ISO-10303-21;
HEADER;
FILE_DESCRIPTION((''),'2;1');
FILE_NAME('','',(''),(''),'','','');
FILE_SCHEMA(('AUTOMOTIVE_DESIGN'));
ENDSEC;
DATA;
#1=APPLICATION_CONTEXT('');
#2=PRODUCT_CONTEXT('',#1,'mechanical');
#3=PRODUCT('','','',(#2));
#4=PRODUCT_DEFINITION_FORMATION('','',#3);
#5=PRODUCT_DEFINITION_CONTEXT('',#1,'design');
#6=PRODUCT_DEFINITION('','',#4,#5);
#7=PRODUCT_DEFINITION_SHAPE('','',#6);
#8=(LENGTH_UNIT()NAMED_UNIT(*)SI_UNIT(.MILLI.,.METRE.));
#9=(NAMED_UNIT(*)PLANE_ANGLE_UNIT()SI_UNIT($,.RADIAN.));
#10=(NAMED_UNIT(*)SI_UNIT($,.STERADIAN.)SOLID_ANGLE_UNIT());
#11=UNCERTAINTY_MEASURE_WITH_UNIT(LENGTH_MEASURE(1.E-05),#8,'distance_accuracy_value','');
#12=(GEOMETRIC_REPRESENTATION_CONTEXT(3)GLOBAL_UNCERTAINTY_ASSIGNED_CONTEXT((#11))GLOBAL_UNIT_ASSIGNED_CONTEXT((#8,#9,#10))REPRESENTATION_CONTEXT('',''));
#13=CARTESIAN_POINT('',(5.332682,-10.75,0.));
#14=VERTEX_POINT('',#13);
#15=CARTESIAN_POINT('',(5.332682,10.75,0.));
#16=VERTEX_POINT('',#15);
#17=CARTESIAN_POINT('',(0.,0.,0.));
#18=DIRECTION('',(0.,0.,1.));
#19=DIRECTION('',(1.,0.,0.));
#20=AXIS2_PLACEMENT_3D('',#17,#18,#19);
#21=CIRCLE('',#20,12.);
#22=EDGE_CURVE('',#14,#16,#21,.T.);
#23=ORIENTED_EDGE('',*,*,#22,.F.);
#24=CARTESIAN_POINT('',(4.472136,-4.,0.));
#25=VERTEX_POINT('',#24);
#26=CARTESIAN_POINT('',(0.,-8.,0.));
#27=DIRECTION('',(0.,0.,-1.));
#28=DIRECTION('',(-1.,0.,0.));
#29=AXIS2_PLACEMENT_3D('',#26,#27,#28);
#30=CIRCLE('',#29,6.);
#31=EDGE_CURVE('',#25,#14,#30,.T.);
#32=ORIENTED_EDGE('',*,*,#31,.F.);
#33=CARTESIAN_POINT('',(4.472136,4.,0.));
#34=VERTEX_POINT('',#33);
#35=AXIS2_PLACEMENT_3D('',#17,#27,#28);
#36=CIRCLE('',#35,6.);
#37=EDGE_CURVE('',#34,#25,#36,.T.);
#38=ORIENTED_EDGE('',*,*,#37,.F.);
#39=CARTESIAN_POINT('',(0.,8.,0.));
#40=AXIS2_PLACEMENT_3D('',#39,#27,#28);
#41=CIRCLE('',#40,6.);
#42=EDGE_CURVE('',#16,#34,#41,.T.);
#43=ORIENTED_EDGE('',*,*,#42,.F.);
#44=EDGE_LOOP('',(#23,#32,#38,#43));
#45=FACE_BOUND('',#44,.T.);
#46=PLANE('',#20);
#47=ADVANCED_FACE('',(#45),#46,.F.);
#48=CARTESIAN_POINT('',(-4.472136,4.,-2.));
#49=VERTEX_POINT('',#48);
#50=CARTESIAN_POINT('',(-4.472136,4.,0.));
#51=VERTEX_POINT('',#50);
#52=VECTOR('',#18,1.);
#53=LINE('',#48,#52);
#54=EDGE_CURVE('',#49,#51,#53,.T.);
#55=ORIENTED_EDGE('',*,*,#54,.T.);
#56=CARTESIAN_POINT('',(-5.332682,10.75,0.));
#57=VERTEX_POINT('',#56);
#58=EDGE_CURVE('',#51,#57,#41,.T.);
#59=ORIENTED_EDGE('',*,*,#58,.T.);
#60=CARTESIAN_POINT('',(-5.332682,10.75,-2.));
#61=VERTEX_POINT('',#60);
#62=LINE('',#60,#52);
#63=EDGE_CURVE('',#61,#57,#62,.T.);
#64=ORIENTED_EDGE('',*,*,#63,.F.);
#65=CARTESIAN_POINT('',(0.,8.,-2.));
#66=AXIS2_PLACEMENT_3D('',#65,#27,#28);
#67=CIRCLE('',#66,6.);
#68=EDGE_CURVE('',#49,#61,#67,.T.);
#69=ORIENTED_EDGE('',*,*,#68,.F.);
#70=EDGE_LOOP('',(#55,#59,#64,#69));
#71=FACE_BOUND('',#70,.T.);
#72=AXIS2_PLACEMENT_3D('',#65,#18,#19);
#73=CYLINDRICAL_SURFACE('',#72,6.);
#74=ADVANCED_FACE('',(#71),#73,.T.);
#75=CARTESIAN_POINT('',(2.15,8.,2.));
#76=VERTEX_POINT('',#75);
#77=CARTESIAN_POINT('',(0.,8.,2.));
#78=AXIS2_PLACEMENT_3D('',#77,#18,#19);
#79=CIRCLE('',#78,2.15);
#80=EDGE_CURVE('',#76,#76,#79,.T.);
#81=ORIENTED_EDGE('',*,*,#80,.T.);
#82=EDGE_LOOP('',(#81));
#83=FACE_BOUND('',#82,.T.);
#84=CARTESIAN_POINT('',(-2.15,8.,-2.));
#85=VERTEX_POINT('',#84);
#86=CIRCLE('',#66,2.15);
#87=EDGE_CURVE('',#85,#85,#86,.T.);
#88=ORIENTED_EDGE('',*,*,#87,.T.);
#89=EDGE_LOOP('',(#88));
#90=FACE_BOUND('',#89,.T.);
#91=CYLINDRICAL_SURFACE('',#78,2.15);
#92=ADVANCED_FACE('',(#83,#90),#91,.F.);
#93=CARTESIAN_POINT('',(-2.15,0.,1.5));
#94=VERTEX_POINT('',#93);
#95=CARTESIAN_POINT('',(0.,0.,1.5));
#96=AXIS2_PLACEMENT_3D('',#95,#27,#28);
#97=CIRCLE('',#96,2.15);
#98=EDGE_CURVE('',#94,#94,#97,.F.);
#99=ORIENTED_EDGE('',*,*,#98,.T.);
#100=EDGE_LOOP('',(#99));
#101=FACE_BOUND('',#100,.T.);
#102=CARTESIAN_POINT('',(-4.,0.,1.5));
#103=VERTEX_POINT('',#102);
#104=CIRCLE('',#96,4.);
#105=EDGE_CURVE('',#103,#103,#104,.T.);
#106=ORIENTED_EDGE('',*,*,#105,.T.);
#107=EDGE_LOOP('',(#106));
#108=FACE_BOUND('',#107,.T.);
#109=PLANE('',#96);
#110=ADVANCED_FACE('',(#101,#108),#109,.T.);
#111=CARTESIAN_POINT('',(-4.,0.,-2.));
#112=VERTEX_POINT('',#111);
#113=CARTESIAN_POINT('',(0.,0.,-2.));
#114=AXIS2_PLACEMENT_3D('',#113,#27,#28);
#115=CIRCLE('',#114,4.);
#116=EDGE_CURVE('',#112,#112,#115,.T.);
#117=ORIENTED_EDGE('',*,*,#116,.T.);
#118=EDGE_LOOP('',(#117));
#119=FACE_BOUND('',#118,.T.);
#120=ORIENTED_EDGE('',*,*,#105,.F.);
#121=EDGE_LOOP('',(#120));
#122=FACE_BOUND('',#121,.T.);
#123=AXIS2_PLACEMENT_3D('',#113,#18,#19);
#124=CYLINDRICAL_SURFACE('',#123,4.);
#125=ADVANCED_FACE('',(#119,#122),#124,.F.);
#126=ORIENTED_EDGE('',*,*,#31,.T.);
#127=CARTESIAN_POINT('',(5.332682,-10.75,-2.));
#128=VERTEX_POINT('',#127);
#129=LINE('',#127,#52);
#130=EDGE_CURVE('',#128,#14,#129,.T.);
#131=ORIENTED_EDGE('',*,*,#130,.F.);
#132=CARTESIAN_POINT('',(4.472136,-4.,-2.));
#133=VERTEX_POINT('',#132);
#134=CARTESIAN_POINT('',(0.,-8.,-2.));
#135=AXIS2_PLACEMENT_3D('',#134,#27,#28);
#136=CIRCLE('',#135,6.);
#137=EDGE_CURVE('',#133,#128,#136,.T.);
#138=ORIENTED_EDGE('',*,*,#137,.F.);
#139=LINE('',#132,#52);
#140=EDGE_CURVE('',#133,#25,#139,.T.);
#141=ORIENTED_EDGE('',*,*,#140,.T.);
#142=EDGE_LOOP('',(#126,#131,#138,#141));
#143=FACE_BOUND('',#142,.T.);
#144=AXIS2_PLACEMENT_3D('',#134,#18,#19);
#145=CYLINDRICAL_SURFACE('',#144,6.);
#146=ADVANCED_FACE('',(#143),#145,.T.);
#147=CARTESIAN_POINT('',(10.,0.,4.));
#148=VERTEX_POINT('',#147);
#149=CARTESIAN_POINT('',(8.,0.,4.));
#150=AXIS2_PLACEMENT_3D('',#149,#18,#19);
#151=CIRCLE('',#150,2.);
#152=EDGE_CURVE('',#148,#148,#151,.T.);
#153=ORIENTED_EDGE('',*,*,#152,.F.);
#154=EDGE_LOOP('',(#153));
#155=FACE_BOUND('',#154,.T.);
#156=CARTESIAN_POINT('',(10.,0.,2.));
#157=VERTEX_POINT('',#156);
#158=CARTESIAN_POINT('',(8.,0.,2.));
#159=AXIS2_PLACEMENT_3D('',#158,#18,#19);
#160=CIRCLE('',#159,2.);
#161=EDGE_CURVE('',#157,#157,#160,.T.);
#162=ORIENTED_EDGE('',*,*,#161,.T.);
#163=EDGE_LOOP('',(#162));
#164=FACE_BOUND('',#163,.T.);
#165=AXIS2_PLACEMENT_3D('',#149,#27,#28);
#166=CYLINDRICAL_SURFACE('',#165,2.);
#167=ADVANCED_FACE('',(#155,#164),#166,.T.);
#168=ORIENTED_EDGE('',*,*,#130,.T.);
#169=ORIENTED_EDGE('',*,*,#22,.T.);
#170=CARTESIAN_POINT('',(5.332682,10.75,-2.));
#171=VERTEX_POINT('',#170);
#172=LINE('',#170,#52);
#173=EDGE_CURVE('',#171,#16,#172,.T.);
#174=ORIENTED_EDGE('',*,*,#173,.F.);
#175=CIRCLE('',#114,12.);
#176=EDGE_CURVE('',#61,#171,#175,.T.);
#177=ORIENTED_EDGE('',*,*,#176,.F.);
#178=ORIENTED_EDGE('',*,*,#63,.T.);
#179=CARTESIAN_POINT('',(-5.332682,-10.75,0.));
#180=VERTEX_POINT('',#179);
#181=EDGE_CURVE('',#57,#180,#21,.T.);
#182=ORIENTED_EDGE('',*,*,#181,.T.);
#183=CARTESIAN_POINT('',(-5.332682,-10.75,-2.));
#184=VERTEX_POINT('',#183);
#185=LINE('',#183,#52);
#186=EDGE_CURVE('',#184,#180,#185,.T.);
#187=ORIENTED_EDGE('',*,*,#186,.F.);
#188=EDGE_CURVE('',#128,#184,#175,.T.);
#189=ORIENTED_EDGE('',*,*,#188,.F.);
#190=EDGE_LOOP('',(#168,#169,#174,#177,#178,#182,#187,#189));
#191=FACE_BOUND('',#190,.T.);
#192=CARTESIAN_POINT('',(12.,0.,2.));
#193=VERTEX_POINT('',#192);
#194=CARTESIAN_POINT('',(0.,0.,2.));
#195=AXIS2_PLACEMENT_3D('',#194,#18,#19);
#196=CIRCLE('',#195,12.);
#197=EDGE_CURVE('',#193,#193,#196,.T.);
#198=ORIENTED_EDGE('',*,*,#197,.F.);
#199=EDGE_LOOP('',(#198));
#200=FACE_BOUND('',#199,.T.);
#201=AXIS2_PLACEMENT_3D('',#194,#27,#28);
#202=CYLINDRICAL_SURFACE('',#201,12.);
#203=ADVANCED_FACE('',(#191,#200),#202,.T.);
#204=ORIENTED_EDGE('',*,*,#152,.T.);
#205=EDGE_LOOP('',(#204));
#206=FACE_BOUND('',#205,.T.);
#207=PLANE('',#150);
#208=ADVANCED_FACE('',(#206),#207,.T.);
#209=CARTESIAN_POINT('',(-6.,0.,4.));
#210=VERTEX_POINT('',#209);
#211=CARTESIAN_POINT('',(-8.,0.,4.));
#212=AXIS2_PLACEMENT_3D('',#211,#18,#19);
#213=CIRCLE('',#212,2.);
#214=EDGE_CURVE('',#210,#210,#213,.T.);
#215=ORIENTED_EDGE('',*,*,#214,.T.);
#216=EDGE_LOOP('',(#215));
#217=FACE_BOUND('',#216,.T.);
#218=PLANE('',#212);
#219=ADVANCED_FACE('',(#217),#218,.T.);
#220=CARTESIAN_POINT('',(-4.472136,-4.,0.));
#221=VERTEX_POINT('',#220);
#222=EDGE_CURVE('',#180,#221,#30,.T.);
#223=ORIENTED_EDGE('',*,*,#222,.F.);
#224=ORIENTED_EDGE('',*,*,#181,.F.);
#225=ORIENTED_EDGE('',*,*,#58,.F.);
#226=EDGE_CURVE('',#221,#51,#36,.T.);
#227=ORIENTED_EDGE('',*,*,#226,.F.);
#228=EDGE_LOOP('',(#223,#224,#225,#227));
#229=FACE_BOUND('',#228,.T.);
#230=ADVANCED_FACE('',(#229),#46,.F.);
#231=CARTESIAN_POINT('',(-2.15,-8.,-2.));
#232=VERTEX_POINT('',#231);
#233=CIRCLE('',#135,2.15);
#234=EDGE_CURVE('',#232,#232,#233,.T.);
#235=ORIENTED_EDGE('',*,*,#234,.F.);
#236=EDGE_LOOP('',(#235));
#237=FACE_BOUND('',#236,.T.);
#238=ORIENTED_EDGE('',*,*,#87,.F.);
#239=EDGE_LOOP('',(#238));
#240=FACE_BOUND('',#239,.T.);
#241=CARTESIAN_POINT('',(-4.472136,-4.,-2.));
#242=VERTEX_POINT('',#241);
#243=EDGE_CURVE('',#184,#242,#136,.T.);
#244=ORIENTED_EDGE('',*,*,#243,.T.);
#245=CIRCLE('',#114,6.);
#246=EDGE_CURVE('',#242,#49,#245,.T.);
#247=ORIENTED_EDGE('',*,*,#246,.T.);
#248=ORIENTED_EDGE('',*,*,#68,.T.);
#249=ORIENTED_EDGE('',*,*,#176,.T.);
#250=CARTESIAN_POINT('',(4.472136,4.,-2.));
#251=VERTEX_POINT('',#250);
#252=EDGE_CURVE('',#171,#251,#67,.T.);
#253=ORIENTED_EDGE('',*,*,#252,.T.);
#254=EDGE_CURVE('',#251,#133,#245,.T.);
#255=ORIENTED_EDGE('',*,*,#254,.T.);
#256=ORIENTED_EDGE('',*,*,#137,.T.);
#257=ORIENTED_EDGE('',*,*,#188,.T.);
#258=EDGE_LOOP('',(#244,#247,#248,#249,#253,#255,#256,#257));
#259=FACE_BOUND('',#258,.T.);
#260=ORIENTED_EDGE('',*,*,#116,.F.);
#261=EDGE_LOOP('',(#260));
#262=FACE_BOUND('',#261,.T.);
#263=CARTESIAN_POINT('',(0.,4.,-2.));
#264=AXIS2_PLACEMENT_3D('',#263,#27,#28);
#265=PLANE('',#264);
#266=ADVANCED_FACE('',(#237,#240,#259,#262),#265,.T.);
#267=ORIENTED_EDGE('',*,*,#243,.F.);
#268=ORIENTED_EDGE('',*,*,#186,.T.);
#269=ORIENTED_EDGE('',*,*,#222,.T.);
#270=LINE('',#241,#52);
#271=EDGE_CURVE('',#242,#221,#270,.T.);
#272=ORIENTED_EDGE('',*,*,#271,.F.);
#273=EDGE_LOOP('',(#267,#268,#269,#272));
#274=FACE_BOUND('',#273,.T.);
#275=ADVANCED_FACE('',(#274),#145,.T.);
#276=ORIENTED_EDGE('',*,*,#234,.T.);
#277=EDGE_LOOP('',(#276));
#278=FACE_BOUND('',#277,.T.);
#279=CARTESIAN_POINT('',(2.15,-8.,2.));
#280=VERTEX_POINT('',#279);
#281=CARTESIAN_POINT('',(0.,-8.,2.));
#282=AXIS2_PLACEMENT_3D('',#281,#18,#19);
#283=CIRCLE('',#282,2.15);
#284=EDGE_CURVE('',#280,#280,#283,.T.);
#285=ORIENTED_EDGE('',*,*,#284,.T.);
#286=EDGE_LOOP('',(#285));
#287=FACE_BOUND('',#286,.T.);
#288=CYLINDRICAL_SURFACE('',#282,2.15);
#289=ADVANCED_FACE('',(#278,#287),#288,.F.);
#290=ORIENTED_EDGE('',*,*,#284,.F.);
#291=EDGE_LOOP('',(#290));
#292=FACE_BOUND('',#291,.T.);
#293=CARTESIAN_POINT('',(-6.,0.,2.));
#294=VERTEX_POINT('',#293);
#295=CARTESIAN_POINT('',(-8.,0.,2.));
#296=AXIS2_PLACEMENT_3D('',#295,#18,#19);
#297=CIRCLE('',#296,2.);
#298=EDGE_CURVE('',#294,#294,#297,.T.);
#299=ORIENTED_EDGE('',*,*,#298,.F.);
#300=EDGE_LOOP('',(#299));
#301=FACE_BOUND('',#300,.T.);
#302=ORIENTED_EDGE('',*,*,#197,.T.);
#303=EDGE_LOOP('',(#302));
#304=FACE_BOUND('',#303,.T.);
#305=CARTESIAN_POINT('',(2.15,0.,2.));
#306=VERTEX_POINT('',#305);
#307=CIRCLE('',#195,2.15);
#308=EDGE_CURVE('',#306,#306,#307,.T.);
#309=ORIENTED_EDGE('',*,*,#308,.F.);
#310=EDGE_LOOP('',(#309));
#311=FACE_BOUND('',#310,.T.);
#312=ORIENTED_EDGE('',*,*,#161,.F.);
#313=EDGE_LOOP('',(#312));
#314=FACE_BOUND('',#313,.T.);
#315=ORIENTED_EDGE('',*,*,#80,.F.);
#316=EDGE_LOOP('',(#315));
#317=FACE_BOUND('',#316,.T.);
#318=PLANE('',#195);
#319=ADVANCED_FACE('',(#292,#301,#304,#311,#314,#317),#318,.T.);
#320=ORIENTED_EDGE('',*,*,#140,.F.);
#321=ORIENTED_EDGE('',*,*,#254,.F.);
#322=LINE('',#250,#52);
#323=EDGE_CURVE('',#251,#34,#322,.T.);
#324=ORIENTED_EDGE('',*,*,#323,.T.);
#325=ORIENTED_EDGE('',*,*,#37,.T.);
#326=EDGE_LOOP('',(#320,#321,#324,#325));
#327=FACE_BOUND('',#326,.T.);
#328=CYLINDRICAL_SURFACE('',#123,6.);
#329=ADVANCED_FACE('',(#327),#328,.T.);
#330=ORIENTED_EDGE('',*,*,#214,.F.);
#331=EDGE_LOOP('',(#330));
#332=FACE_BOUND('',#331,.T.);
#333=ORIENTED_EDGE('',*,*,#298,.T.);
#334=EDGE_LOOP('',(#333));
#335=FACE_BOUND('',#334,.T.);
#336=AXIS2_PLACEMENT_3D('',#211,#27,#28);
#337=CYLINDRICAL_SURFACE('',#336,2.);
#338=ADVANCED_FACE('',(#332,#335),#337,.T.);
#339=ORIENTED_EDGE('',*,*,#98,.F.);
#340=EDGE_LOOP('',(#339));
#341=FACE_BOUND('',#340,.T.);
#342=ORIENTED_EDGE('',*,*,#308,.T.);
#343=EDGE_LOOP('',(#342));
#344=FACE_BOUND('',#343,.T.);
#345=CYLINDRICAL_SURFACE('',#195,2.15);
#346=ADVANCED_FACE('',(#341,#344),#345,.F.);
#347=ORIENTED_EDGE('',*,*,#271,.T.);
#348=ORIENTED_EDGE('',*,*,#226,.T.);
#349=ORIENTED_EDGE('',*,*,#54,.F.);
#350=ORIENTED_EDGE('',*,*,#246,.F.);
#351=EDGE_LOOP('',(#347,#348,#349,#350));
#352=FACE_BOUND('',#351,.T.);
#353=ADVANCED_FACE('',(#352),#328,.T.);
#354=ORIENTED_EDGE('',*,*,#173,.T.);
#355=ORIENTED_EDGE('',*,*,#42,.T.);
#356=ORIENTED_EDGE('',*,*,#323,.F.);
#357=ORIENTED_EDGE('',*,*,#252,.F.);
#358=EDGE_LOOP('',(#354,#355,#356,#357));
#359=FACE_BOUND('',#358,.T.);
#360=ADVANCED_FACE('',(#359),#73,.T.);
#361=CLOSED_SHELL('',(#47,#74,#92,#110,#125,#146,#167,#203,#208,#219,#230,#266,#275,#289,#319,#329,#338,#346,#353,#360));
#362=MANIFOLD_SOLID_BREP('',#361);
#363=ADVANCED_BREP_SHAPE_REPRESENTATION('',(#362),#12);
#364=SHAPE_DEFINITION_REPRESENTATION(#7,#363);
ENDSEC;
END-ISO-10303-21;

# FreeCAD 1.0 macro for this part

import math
import FreeCAD as App
import Part
import Sketcher
Q = App.Units.Quantity

doc = App.newDocument("Part")
params = doc.addObject("Spreadsheet::Sheet", "Params")
for row, (alias, value) in enumerate([
    ("sketch1_diameter", "24 mm"),
    ("pad1_length", "2 mm"),
    ("sketch2_diameter", "4 mm"),
    ("pad2_length", "2 mm"),
    ("sketch3_diameter", "4.3 mm"),
    ("hole_diameter", "4.3 mm"),
    ("sketch4_diameter", "8 mm"),
    ("sketch4_radius", "6 mm"),
    ("sketch4_radius2", "12 mm"),
    ("sketch4_diameter2", "4.3 mm"),
    ("pad3_length", "2 mm"),
    ("sketch5_diameter", "8 mm"),
    ("pocket1_length", "1.5 mm"),
], start=1):
    params.set(f"A{row}", alias)
    params.set(f"B{row}", "=" + value)
    params.setAlias(f"B{row}", alias)

body = doc.addObject("PartDesign::Body", "Body")

sketch1 = body.newObject("Sketcher::SketchObject", "Sketch")
sketch1.AttachmentSupport = (doc.getObject("XY_Plane"), [""])
sketch1.MapMode = "FlatFace"
sketch1.addGeometry(Part.Circle(App.Vector(0, 0, 0), App.Vector(0, 0, 1), 12), False)
sketch1.addConstraint(Sketcher.Constraint("Coincident", 0, 3, -1, 1))
sketch1.addConstraint(Sketcher.Constraint("Diameter", 0, Q("24 mm")))
sketch1.setExpression("Constraints[1]", "Params.sketch1_diameter")
pad1 = body.newObject("PartDesign::Pad", "Pad")
pad1.Profile = sketch1
pad1.setExpression("Length", "Params.pad1_length")

sketch2 = body.newObject("Sketcher::SketchObject", "Sketch001")
sketch2.AttachmentSupport = (doc.getObject("XY_Plane"), [""])
sketch2.MapMode = "FlatFace"
sketch2.AttachmentOffset = App.Placement(App.Vector(0, 0, 2), App.Rotation())
sketch2.addGeometry(Part.Circle(App.Vector(-8, 0, 0), App.Vector(0, 0, 1), 2), False)
sketch2.addGeometry(Part.Circle(App.Vector(8, 0, 0), App.Vector(0, 0, 1), 2), False)
sketch2.addConstraint(Sketcher.Constraint("Equal", 0, 1))
sketch2.addConstraint(Sketcher.Constraint("Symmetric", 0, 3, 1, 3, -1, 1))
sketch2.addConstraint(Sketcher.Constraint("PointOnObject", 0, 3, -1))
sketch2.addConstraint(Sketcher.Constraint("Diameter", 0, Q("4 mm")))
sketch2.addConstraint(Sketcher.Constraint("DistanceX", 0, 3, -1, 1, Q("8 mm")))
sketch2.setExpression("Constraints[3]", "Params.sketch2_diameter")
pad2 = body.newObject("PartDesign::Pad", "Pad001")
pad2.Profile = sketch2
pad2.setExpression("Length", "Params.pad2_length")

sketch3 = body.newObject("Sketcher::SketchObject", "Sketch002")
sketch3.AttachmentSupport = (doc.getObject("XY_Plane"), [""])
sketch3.MapMode = "FlatFace"
sketch3.AttachmentOffset = App.Placement(App.Vector(0, 0, 2), App.Rotation())
sketch3.addGeometry(Part.Circle(App.Vector(0, 8, 0), App.Vector(0, 0, 1), 2.1), False)
sketch3.addGeometry(Part.Circle(App.Vector(0, 0, 0), App.Vector(0, 0, 1), 2.1), False)
sketch3.addGeometry(Part.Circle(App.Vector(0, -8, 0), App.Vector(0, 0, 1), 2.1), False)
sketch3.addConstraint(Sketcher.Constraint("Coincident", 1, 3, -1, 1))
sketch3.addConstraint(Sketcher.Constraint("Equal", 0, 1))
sketch3.addConstraint(Sketcher.Constraint("Equal", 1, 2))
sketch3.addConstraint(Sketcher.Constraint("Symmetric", 0, 3, 2, 3, -1, 1))
sketch3.addConstraint(Sketcher.Constraint("PointOnObject", 0, 3, -2))
sketch3.addConstraint(Sketcher.Constraint("Diameter", 0, Q("4.3 mm")))
sketch3.addConstraint(Sketcher.Constraint("DistanceY", -1, 1, 0, 3, Q("8 mm")))
sketch3.setExpression("Constraints[5]", "Params.sketch3_diameter")
doc.recompute()
hole = body.newObject("PartDesign::Hole", "Hole")
hole.Profile = sketch3
hole.ThreadType = "None"
hole.setExpression("Diameter", "Params.hole_diameter")
hole.DepthType = "ThroughAll"

sketch4 = body.newObject("Sketcher::SketchObject", "Sketch003")
sketch4.AttachmentSupport = (doc.getObject("XY_Plane"), [""])
sketch4.MapMode = "FlatFace"
sketch4.AttachmentOffset = App.Placement(App.Vector(0, 0, -2), App.Rotation())
sketch4.addGeometry(Part.ArcOfCircle(Part.Circle(App.Vector(0, 0, 0), App.Vector(0, 0, 1), 6), math.radians(138), math.radians(222)), False)
sketch4.addGeometry(Part.ArcOfCircle(Part.Circle(App.Vector(0, 8, 0), App.Vector(0, 0, 1), 6), math.radians(153), math.radians(222)), False)
sketch4.addGeometry(Part.ArcOfCircle(Part.Circle(App.Vector(0, 0, 0), App.Vector(0, 0, 1), 12), math.radians(64), math.radians(116)), False)
sketch4.addGeometry(Part.ArcOfCircle(Part.Circle(App.Vector(0, 8, 0), App.Vector(0, 0, 1), 6), math.radians(-42), math.radians(27)), False)
sketch4.addGeometry(Part.ArcOfCircle(Part.Circle(App.Vector(0, 0, 0), App.Vector(0, 0, 1), 6), math.radians(-42), math.radians(42)), False)
sketch4.addGeometry(Part.ArcOfCircle(Part.Circle(App.Vector(0, -8, 0), App.Vector(0, 0, 1), 6), math.radians(-27), math.radians(42)), False)
sketch4.addGeometry(Part.ArcOfCircle(Part.Circle(App.Vector(0, 0, 0), App.Vector(0, 0, 1), 12), math.radians(-116), math.radians(-64)), False)
sketch4.addGeometry(Part.ArcOfCircle(Part.Circle(App.Vector(0, -8, 0), App.Vector(0, 0, 1), 6), math.radians(138), math.radians(207)), False)
sketch4.addGeometry(Part.Circle(App.Vector(0, -8, 0), App.Vector(0, 0, 1), 2.1), False)
sketch4.addGeometry(Part.Circle(App.Vector(0, 8, 0), App.Vector(0, 0, 1), 2.1), False)
sketch4.addGeometry(Part.Circle(App.Vector(0, 0, 0), App.Vector(0, 0, 1), 4), False)
sketch4.addConstraint(Sketcher.Constraint("Coincident", 0, 1, 1, 2))
sketch4.addConstraint(Sketcher.Constraint("Coincident", 1, 1, 2, 2))
sketch4.addConstraint(Sketcher.Constraint("Coincident", 2, 1, 3, 2))
sketch4.addConstraint(Sketcher.Constraint("Coincident", 3, 1, 4, 2))
sketch4.addConstraint(Sketcher.Constraint("Coincident", 4, 1, 5, 2))
sketch4.addConstraint(Sketcher.Constraint("Coincident", 5, 1, 6, 2))
sketch4.addConstraint(Sketcher.Constraint("Coincident", 6, 1, 7, 2))
sketch4.addConstraint(Sketcher.Constraint("Coincident", 7, 1, 0, 2))
sketch4.addConstraint(Sketcher.Constraint("Coincident", 0, 3, -1, 1))
sketch4.addConstraint(Sketcher.Constraint("Coincident", 2, 3, -1, 1))
sketch4.addConstraint(Sketcher.Constraint("Coincident", 4, 3, -1, 1))
sketch4.addConstraint(Sketcher.Constraint("Coincident", 6, 3, -1, 1))
sketch4.addConstraint(Sketcher.Constraint("Coincident", 10, 3, -1, 1))
sketch4.addConstraint(Sketcher.Constraint("Coincident", 3, 3, 1, 3))
sketch4.addConstraint(Sketcher.Constraint("Coincident", 7, 3, 5, 3))
sketch4.addConstraint(Sketcher.Constraint("Coincident", 8, 3, 5, 3))
sketch4.addConstraint(Sketcher.Constraint("Coincident", 9, 3, 1, 3))
sketch4.addConstraint(Sketcher.Constraint("Equal", 0, 1))
sketch4.addConstraint(Sketcher.Constraint("Equal", 1, 3))
sketch4.addConstraint(Sketcher.Constraint("Equal", 3, 4))
sketch4.addConstraint(Sketcher.Constraint("Equal", 4, 5))
sketch4.addConstraint(Sketcher.Constraint("Equal", 2, 6))
sketch4.addConstraint(Sketcher.Constraint("Equal", 5, 7))
sketch4.addConstraint(Sketcher.Constraint("Equal", 8, 9))
sketch4.addConstraint(Sketcher.Constraint("Symmetric", 1, 3, 5, 3, -1, 1))
sketch4.addConstraint(Sketcher.Constraint("PointOnObject", 1, 3, -2))
sketch4.addConstraint(Sketcher.Constraint("Diameter", 10, Q("8 mm")))
sketch4.addConstraint(Sketcher.Constraint("Radius", 0, Q("6 mm")))
sketch4.addConstraint(Sketcher.Constraint("Radius", 2, Q("12 mm")))
sketch4.addConstraint(Sketcher.Constraint("Diameter", 8, Q("4.3 mm")))
sketch4.addConstraint(Sketcher.Constraint("DistanceY", -1, 1, 1, 3, Q("8 mm")))
sketch4.setExpression("Constraints[26]", "Params.sketch4_diameter")
sketch4.setExpression("Constraints[27]", "Params.sketch4_radius")
sketch4.setExpression("Constraints[28]", "Params.sketch4_radius2")
sketch4.setExpression("Constraints[29]", "Params.sketch4_diameter2")
pad3 = body.newObject("PartDesign::Pad", "Pad002")
pad3.Profile = sketch4
pad3.setExpression("Length", "Params.pad3_length")

sketch5 = body.newObject("Sketcher::SketchObject", "Sketch004")
sketch5.AttachmentSupport = (doc.getObject("XY_Plane"), [""])
sketch5.MapMode = "FlatFace"
sketch5.addGeometry(Part.Circle(App.Vector(0, 0, 0), App.Vector(0, 0, 1), 4), False)
sketch5.addConstraint(Sketcher.Constraint("Coincident", 0, 3, -1, 1))
sketch5.addConstraint(Sketcher.Constraint("Diameter", 0, Q("8 mm")))
sketch5.setExpression("Constraints[1]", "Params.sketch5_diameter")
pocket1 = body.newObject("PartDesign::Pocket", "Pocket")
pocket1.Profile = sketch5
pocket1.setExpression("Length", "Params.pocket1_length")
pocket1.Reversed = True

doc.recompute()
